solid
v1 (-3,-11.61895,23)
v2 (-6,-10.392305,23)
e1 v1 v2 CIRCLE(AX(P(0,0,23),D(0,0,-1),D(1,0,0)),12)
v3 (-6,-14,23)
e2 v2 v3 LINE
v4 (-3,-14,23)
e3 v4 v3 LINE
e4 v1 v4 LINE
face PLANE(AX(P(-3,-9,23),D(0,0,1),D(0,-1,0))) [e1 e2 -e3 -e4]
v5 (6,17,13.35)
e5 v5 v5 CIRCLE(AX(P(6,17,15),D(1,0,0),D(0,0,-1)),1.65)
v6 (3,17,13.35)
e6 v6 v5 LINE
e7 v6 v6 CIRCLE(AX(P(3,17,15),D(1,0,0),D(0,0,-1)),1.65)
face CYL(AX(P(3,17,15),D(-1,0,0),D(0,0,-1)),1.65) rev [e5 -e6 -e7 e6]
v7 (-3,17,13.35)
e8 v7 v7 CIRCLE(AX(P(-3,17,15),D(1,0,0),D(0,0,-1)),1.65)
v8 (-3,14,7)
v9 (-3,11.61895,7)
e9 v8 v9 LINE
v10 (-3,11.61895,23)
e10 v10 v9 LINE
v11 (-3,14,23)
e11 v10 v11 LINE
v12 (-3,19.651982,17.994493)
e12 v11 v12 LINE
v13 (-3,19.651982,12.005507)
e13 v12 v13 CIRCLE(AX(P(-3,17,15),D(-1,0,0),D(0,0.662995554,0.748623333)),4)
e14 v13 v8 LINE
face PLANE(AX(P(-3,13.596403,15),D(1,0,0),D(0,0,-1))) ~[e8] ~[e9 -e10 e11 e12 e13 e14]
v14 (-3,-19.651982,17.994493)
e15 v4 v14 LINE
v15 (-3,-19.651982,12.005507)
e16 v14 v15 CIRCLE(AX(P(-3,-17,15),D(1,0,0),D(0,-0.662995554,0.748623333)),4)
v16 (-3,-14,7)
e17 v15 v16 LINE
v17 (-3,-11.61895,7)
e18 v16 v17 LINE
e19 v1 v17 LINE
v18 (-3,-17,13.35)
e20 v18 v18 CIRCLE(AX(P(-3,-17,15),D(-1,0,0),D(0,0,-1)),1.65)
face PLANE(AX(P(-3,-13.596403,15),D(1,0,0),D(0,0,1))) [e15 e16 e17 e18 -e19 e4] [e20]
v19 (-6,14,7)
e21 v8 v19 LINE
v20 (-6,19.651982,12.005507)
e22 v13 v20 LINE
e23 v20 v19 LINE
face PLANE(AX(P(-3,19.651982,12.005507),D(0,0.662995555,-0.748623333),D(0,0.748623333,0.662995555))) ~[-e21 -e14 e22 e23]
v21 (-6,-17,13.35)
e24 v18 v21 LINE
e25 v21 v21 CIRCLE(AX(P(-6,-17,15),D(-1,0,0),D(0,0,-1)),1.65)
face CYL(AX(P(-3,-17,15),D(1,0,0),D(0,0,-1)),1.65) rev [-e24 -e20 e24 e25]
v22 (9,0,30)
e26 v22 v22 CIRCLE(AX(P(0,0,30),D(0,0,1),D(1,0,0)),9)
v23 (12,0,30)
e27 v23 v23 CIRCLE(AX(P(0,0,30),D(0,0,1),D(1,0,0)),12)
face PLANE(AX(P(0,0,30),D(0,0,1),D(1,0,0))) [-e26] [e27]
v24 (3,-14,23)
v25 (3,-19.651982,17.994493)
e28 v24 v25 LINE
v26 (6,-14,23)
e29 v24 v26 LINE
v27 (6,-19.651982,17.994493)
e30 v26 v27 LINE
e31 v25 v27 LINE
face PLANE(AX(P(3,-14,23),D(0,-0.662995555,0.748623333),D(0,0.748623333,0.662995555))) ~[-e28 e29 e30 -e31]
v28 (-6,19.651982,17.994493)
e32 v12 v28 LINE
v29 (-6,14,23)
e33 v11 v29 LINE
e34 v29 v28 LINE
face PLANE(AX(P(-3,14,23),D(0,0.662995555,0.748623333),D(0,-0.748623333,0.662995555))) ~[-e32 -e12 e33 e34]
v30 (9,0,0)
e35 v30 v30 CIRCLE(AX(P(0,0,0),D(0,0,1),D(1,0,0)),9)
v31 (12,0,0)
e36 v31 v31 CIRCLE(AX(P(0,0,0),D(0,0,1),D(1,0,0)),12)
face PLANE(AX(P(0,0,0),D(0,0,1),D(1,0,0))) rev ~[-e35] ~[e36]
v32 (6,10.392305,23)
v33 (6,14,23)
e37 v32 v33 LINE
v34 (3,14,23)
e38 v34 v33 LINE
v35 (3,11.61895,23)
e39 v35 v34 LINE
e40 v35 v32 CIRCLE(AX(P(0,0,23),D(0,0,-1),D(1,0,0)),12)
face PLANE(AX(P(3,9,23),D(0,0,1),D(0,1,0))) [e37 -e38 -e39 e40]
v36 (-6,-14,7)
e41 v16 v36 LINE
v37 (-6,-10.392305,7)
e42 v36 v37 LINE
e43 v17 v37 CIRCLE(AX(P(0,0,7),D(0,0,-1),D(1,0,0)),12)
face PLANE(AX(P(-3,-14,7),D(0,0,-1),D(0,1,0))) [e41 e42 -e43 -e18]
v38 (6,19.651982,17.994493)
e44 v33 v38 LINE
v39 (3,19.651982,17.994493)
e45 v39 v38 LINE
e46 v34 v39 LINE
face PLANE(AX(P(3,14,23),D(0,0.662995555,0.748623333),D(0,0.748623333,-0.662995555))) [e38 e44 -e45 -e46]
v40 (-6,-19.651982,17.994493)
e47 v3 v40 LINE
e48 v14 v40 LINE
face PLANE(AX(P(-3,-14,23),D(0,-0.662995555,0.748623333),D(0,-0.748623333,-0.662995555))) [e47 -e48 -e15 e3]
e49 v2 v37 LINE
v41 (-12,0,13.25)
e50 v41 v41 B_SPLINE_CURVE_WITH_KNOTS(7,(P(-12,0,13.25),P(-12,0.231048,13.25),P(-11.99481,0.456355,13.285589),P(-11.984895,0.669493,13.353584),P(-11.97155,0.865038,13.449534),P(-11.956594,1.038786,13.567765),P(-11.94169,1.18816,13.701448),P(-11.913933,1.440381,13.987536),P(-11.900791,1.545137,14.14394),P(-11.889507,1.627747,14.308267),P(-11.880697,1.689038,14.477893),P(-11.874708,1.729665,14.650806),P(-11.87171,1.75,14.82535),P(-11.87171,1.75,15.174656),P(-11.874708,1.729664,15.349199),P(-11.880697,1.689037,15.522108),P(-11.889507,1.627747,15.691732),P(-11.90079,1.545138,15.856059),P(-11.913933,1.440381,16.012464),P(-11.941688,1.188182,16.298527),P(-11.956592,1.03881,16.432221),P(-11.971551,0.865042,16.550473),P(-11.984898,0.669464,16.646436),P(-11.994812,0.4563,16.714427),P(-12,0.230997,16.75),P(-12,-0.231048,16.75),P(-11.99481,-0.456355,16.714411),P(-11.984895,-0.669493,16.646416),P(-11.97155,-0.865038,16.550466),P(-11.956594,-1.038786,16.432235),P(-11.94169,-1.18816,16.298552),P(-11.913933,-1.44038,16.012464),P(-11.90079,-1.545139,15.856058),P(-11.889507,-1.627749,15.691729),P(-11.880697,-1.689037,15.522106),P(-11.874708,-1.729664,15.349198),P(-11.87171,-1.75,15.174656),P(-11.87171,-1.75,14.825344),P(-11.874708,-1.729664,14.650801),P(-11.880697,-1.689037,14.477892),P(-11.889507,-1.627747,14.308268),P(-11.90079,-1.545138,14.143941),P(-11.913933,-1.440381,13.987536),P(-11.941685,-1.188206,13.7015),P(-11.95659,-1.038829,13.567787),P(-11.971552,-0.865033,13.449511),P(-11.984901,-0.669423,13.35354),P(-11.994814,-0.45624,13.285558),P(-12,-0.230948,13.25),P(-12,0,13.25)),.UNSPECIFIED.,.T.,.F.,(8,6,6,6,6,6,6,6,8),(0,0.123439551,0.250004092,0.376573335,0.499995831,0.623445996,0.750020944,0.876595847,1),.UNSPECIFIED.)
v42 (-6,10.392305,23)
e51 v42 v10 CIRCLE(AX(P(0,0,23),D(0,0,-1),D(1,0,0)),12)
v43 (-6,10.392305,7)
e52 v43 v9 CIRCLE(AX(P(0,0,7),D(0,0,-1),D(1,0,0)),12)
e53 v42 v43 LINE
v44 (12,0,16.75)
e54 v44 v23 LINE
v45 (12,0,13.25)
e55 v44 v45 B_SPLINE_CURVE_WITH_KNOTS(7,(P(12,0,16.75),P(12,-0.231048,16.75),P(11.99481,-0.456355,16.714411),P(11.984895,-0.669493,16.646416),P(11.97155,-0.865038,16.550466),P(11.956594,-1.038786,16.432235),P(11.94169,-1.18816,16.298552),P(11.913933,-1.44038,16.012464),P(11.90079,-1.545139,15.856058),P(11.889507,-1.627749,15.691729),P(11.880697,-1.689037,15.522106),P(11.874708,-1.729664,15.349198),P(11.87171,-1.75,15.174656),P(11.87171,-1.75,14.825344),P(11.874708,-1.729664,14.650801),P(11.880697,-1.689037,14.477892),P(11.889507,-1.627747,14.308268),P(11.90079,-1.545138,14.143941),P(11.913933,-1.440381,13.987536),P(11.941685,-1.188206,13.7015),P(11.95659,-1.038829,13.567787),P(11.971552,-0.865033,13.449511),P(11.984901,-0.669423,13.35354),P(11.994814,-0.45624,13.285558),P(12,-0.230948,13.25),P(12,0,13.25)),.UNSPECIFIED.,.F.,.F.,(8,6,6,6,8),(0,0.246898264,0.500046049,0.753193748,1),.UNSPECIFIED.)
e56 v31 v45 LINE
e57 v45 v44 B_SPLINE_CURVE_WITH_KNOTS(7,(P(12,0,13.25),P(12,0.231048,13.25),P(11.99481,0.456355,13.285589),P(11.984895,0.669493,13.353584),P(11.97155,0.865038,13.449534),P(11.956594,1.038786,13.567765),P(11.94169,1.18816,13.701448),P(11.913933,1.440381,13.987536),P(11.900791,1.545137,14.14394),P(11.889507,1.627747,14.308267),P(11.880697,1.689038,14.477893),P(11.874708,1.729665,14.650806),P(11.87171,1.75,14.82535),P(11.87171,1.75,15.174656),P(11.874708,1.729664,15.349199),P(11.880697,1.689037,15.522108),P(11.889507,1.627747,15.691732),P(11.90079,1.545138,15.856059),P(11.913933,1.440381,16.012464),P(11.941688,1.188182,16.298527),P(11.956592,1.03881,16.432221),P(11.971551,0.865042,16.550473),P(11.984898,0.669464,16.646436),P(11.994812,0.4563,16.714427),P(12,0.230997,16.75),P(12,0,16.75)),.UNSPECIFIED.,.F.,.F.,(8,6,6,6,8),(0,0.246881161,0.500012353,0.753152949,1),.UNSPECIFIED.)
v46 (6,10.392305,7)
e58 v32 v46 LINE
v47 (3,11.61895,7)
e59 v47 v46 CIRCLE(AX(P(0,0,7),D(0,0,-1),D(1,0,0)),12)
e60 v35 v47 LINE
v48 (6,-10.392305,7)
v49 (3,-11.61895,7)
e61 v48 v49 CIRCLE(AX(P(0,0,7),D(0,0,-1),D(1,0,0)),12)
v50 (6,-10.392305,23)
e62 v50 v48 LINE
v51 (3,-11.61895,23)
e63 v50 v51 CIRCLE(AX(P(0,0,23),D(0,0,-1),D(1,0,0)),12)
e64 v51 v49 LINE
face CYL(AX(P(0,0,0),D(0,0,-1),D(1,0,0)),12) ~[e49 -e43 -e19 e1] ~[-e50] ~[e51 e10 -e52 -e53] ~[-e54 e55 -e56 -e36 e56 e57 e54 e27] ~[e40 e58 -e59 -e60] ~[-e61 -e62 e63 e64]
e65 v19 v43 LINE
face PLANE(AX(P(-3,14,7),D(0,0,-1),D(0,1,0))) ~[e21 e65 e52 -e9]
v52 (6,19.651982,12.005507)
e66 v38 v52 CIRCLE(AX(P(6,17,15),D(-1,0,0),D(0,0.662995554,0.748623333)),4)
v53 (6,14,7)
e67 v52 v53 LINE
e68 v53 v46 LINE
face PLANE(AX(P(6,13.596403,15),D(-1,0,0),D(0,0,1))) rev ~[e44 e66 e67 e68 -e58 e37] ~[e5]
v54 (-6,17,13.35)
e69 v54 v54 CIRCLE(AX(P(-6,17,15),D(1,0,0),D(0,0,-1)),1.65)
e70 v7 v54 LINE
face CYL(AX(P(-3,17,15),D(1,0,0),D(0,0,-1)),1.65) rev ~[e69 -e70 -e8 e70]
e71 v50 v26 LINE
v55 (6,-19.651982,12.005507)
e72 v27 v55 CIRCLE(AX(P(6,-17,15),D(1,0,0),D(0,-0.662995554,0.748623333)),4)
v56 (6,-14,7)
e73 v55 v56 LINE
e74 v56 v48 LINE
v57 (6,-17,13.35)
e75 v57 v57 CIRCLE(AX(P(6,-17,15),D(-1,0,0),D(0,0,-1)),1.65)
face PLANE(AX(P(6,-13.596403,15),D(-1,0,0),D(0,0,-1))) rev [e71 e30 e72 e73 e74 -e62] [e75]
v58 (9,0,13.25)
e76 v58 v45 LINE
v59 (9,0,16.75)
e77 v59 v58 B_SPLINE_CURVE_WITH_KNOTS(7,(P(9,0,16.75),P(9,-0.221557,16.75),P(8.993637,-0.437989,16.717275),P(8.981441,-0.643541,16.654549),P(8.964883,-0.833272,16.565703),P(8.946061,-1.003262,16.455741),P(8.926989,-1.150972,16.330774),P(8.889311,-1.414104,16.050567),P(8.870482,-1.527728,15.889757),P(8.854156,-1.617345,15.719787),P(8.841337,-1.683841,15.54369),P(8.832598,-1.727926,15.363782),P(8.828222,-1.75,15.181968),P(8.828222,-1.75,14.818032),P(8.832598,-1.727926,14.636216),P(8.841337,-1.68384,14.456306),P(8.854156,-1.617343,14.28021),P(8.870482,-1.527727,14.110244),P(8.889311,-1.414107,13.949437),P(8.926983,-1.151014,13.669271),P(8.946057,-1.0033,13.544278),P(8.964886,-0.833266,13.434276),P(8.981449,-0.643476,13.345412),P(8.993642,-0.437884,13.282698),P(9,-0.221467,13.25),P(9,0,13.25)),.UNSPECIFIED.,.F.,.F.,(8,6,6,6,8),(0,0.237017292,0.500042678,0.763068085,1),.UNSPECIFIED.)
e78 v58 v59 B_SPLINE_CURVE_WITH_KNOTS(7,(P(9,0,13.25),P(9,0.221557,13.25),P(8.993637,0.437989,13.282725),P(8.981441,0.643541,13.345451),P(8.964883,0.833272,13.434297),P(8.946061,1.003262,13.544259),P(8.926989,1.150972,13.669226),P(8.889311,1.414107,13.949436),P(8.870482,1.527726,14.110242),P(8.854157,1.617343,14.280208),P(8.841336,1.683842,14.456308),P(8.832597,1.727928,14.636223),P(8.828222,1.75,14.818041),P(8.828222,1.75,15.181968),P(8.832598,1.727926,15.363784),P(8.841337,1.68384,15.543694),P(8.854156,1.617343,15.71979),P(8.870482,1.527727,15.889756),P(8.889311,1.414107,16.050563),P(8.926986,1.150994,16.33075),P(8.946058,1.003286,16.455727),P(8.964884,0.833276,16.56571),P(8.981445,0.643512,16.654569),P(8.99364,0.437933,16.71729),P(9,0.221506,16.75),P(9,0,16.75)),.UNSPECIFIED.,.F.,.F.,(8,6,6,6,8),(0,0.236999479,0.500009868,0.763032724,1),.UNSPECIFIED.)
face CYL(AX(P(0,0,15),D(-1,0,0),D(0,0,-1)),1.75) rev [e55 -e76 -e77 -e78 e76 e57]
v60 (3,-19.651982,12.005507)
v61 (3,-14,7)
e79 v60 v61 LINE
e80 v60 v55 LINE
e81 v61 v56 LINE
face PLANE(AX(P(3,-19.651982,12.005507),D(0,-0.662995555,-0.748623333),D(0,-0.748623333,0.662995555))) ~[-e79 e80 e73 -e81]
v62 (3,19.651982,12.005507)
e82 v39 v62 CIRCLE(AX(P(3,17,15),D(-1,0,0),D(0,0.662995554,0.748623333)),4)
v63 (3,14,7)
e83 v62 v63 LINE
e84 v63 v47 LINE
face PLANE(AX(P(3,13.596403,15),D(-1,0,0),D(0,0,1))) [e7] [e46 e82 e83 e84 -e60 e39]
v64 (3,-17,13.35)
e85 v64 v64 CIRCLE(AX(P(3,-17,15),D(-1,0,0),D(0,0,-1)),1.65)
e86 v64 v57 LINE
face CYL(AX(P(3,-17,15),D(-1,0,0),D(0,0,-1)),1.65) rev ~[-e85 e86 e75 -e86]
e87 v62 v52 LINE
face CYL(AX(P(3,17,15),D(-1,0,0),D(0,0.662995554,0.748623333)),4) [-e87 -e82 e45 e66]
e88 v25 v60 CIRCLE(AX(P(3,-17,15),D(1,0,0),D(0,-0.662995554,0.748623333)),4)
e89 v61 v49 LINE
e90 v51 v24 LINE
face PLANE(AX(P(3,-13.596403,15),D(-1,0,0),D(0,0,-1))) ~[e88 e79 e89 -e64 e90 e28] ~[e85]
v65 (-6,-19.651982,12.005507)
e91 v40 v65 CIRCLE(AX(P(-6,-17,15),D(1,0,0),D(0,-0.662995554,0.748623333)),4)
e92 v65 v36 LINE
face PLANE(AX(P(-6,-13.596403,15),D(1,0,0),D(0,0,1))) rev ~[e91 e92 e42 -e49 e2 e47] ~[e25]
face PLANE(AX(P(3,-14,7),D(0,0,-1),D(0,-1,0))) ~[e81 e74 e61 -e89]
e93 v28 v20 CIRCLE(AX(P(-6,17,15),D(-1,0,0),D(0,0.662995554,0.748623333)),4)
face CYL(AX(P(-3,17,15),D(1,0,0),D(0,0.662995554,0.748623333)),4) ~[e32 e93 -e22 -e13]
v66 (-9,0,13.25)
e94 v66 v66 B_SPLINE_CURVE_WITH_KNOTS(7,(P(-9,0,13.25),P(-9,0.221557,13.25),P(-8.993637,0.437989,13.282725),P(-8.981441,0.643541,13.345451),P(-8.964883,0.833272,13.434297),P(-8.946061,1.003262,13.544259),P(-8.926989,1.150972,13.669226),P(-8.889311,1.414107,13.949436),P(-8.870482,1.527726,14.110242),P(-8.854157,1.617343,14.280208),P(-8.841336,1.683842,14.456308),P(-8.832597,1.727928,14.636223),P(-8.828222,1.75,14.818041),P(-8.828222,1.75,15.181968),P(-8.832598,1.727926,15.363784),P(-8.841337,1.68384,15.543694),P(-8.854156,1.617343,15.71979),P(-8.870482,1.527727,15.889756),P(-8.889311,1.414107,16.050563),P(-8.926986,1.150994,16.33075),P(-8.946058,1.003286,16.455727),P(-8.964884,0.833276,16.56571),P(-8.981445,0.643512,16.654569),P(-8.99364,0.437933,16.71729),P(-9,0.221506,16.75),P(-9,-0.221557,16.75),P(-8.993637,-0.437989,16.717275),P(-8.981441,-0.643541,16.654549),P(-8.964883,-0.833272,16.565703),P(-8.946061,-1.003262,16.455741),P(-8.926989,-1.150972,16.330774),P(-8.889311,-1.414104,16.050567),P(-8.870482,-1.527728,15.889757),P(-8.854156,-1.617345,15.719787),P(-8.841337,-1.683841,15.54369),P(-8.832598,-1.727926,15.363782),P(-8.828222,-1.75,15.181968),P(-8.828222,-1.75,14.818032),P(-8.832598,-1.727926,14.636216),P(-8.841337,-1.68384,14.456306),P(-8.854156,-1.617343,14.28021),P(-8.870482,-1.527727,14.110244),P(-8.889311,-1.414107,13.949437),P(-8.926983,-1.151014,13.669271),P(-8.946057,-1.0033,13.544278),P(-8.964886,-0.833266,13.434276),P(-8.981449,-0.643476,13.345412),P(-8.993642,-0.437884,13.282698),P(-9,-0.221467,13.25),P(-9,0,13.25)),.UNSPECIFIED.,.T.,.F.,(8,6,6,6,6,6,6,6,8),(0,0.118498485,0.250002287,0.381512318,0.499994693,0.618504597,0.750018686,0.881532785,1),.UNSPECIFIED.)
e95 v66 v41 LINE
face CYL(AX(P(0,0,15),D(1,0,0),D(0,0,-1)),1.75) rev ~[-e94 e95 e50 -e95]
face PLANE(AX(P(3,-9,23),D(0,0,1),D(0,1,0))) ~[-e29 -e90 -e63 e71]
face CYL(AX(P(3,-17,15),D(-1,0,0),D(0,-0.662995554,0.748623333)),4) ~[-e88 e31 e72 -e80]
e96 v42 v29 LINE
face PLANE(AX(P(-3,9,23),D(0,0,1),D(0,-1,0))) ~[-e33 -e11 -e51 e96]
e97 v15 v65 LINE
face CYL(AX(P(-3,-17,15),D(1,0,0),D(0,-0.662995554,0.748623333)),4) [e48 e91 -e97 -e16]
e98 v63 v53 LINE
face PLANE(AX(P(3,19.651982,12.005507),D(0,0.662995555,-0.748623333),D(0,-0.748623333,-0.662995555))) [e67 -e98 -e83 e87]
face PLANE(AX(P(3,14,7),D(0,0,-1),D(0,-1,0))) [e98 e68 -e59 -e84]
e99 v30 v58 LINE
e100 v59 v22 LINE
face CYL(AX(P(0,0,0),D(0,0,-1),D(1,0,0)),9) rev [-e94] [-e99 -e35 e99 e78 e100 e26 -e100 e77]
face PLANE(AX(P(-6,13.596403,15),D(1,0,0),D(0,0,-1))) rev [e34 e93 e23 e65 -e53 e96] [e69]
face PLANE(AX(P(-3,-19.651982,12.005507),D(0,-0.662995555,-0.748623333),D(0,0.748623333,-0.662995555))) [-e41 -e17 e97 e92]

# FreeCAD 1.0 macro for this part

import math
import FreeCAD as App
import Part
import Sketcher
Q = App.Units.Quantity

doc = App.newDocument("Part")
params = doc.addObject("Spreadsheet::Sheet", "Params")
for row, (alias, value) in enumerate([
    ("sketch1_diameter", "24 mm"),
    ("sketch1_diameter2", "18 mm"),
    ("pad1_length", "30 mm"),
    ("sketch2_radius", "4 mm"),
    ("sketch2_diameter", "3.3 mm"),
    ("sketch2_width", "5 mm"),
    ("sketch2_height", "16 mm"),
    ("pad2_length", "3 mm"),
    ("sketch3_diameter", "3.5 mm"),
    ("sketch4_radius", "4 mm"),
    ("sketch4_diameter", "3.3 mm"),
    ("sketch4_width", "5 mm"),
    ("sketch4_height", "16 mm"),
    ("pad3_length", "3 mm"),
], start=1):
    params.set(f"A{row}", alias)
    params.set(f"B{row}", "=" + value)
    params.setAlias(f"B{row}", alias)

body = doc.addObject("PartDesign::Body", "Body")

# Sketch on XY plane
sketch1 = body.newObject("Sketcher::SketchObject", "Sketch")
sketch1.AttachmentSupport = (doc.getObject("XY_Plane"), [""])
sketch1.MapMode = "FlatFace"
sketch1.addGeometry([
    Part.Circle(App.Vector(0, 0, 0), App.Vector(0, 0, 1), 12),
    Part.Circle(App.Vector(0, 0, 0), App.Vector(0, 0, 1), 9),
], False)
sketch1.addConstraint([
    Sketcher.Constraint("Coincident", 0, 3, -1, 1),
    Sketcher.Constraint("Coincident", 1, 3, -1, 1),
    Sketcher.Constraint("Diameter", 0, Q("24 mm")),
    Sketcher.Constraint("Diameter", 1, Q("18 mm")),
])
sketch1.setExpression("Constraints[2]", "Params.sketch1_diameter")
sketch1.setExpression("Constraints[3]", "Params.sketch1_diameter2")
pad1 = body.newObject("PartDesign::Pad", "Pad")
pad1.Profile = sketch1
pad1.setExpression("Length", "Params.pad1_length")

# Sketch on YZ plane
sketch2 = body.newObject("Sketcher::SketchObject", "Sketch001")
sketch2.AttachmentSupport = (doc.getObject("YZ_Plane"), [""])
sketch2.MapMode = "FlatFace"
sketch2.AttachmentOffset = App.Placement(App.Vector(0, 0, 3), App.Rotation())
sketch2.addGeometry([
    Part.LineSegment(App.Vector(14, 23, 0), App.Vector(9, 23, 0)),  # 0
    Part.LineSegment(App.Vector(9, 23, 0), App.Vector(9, 7, 0)),  # 1
    Part.LineSegment(App.Vector(9, 7, 0), App.Vector(14, 7, 0)),  # 2
    Part.LineSegment(App.Vector(14, 7, 0), App.Vector(19.7, 12, 0)),  # 3
    Part.ArcOfCircle(Part.Circle(App.Vector(17, 15, 0), App.Vector(0, 0, 1), 4), math.radians(-48), math.radians(48)),  # 4
    Part.LineSegment(App.Vector(19.7, 18, 0), App.Vector(14, 23, 0)),  # 5
    Part.Circle(App.Vector(17, 15, 0), App.Vector(0, 0, 1), 1.6),  # 6
], False)
sketch2.addConstraint([
    Sketcher.Constraint("Coincident", 0, 2, 1, 1),
    Sketcher.Constraint("Coincident", 1, 2, 2, 1),
    Sketcher.Constraint("Coincident", 2, 2, 3, 1),
    Sketcher.Constraint("Tangent", 3, 2, 4, 1),
    Sketcher.Constraint("Tangent", 4, 2, 5, 1),
    Sketcher.Constraint("Coincident", 5, 2, 0, 1),
    Sketcher.Constraint("Horizontal", 0),
    Sketcher.Constraint("Vertical", 1),
    Sketcher.Constraint("Horizontal", 2),
    Sketcher.Constraint("Coincident", 6, 3, 4, 3),
    Sketcher.Constraint("Vertical", 3, 2, 4, 2),
    Sketcher.Constraint("Vertical", 2, 2, 5, 2),
    Sketcher.Constraint("Radius", 4, Q("4 mm")),
    Sketcher.Constraint("Diameter", 6, Q("3.3 mm")),
    Sketcher.Constraint("DistanceX", 0, 2, 0, 1, Q("5 mm")),
    Sketcher.Constraint("DistanceY", 1, 2, 1, 1, Q("16 mm")),
    Sketcher.Constraint("DistanceX", -1, 1, 4, 3, Q("17 mm")),
    Sketcher.Constraint("DistanceY", -1, 1, 4, 3, Q("15 mm")),
    Sketcher.Constraint("DistanceX", -1, 1, 0, 2, Q("9 mm")),
])
sketch2.setExpression("Constraints[12]", "Params.sketch2_radius")
sketch2.setExpression("Constraints[13]", "Params.sketch2_diameter")
sketch2.setExpression("Constraints[14]", "Params.sketch2_width")
sketch2.setExpression("Constraints[15]", "Params.sketch2_height")
pad2 = body.newObject("PartDesign::Pad", "Pad001")
pad2.Profile = sketch2
pad2.setExpression("Length", "Params.pad2_length")
doc.recompute()

mirrored = body.newObject("PartDesign::Mirrored", "Mirrored")
mirrored.Originals = [pad2]
mirrored.MirrorPlane = (doc.getObject("YZ_Plane"), [""])
body.Tip = mirrored

# Sketch on YZ plane
sketch3 = body.newObject("Sketcher::SketchObject", "Sketch002")
sketch3.AttachmentSupport = (doc.getObject("YZ_Plane"), [""])
sketch3.MapMode = "FlatFace"
sketch3.addGeometry(Part.Circle(App.Vector(0, 15, 0), App.Vector(0, 0, 1), 1.8), False)
sketch3.addConstraint([
    Sketcher.Constraint("PointOnObject", 0, 3, -2),
    Sketcher.Constraint("Diameter", 0, Q("3.5 mm")),
    Sketcher.Constraint("DistanceY", -1, 1, 0, 3, Q("15 mm")),
])
sketch3.setExpression("Constraints[1]", "Params.sketch3_diameter")
pocket1 = body.newObject("PartDesign::Pocket", "Pocket")
pocket1.Profile = sketch3
pocket1.Type = "ThroughAll"
pocket1.Midplane = True
doc.recompute()

mirrored2 = body.newObject("PartDesign::Mirrored", "Mirrored001")
mirrored2.Originals = [pad2]
mirrored2.MirrorPlane = (doc.getObject("XZ_Plane"), [""])
body.Tip = mirrored2

# Sketch on YZ plane
sketch4 = body.newObject("Sketcher::SketchObject", "Sketch003")
sketch4.AttachmentSupport = (doc.getObject("YZ_Plane"), [""])
sketch4.MapMode = "FlatFace"
sketch4.AttachmentOffset = App.Placement(App.Vector(0, 0, -3), App.Rotation())
sketch4.addGeometry([
    Part.LineSegment(App.Vector(-14, 23, 0), App.Vector(-9, 23, 0)),  # 0
    Part.LineSegment(App.Vector(-9, 23, 0), App.Vector(-9, 7, 0)),  # 1
    Part.LineSegment(App.Vector(-9, 7, 0), App.Vector(-14, 7, 0)),  # 2
    Part.LineSegment(App.Vector(-14, 7, 0), App.Vector(-19.7, 12, 0)),  # 3
    Part.ArcOfCircle(Part.Circle(App.Vector(-17, 15, 0), App.Vector(0, 0, 1), 4), math.radians(132), math.radians(228)),  # 4
    Part.LineSegment(App.Vector(-19.7, 18, 0), App.Vector(-14, 23, 0)),  # 5
    Part.Circle(App.Vector(-17, 15, 0), App.Vector(0, 0, 1), 1.6),  # 6
], False)
sketch4.addConstraint([
    Sketcher.Constraint("Coincident", 0, 2, 1, 1),
    Sketcher.Constraint("Coincident", 1, 2, 2, 1),
    Sketcher.Constraint("Coincident", 2, 2, 3, 1),
    Sketcher.Constraint("Tangent", 3, 2, 4, 2),
    Sketcher.Constraint("Tangent", 4, 1, 5, 1),
    Sketcher.Constraint("Coincident", 5, 2, 0, 1),
    Sketcher.Constraint("Horizontal", 0),
    Sketcher.Constraint("Vertical", 1),
    Sketcher.Constraint("Horizontal", 2),
    Sketcher.Constraint("Coincident", 6, 3, 4, 3),
    Sketcher.Constraint("Vertical", 3, 2, 4, 1),
    Sketcher.Constraint("Vertical", 2, 2, 5, 2),
    Sketcher.Constraint("Radius", 4, Q("4 mm")),
    Sketcher.Constraint("Diameter", 6, Q("3.3 mm")),
    Sketcher.Constraint("DistanceX", 0, 1, 0, 2, Q("5 mm")),
    Sketcher.Constraint("DistanceY", 1, 2, 1, 1, Q("16 mm")),
    Sketcher.Constraint("DistanceX", 4, 3, -1, 1, Q("17 mm")),
    Sketcher.Constraint("DistanceY", -1, 1, 4, 3, Q("15 mm")),
    Sketcher.Constraint("DistanceX", 0, 2, -1, 1, Q("9 mm")),
])
sketch4.setExpression("Constraints[12]", "Params.sketch4_radius")
sketch4.setExpression("Constraints[13]", "Params.sketch4_diameter")
sketch4.setExpression("Constraints[14]", "Params.sketch4_width")
sketch4.setExpression("Constraints[15]", "Params.sketch4_height")
pad3 = body.newObject("PartDesign::Pad", "Pad002")
pad3.Profile = sketch4
pad3.setExpression("Length", "Params.pad3_length")
pad3.Reversed = True

doc.recompute()
